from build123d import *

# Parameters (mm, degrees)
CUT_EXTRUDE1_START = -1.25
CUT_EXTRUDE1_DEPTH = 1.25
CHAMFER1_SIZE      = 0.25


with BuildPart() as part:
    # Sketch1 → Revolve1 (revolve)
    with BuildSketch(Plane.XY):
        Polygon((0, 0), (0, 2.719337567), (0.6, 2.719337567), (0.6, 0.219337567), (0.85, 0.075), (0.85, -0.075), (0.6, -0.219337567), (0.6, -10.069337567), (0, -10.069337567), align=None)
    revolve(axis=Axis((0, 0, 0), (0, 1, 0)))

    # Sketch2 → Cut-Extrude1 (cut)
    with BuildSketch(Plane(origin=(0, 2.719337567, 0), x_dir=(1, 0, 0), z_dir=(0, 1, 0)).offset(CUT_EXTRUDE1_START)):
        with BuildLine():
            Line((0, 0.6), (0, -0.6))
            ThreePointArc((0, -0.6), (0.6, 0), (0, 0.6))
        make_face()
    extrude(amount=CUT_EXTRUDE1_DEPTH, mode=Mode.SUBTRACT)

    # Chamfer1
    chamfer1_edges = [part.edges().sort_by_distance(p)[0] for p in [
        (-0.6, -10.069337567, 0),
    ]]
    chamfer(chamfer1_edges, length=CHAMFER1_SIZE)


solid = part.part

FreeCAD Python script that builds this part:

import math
import FreeCAD as App
import Part
import Sketcher
Q = App.Units.Quantity


def edges_at(feature, points):
    """Names of the edges that pass closest to the given points."""
    edges = feature.Shape.Edges
    near = lambda p: min(range(len(edges)), key=lambda i: edges[i].distToShape(Part.Vertex(*p))[0])
    return sorted({f"Edge{near(p) + 1}" for p in points})


def add_polygon(sketch, points):
    """Adds a closed chain of lines whose ends are joined by coincident constraints."""
    first, n = sketch.GeometryCount, len(points)
    for a, b in zip(points, points[1:] + points[:1]):
        sketch.addGeometry(Part.LineSegment(App.Vector(*a, 0), App.Vector(*b, 0)), False)
    for i in range(n):
        sketch.addConstraint(Sketcher.Constraint("Coincident", first + i, 2, first + (i + 1) % n, 1))

doc = App.newDocument("Part")
body = doc.addObject("PartDesign::Body", "Body")

sketch1 = body.newObject("Sketcher::SketchObject", "Sketch")
sketch1.AttachmentSupport = (doc.getObject("XY_Plane"), [""])
sketch1.MapMode = "FlatFace"
add_polygon(sketch1, [(0, 2.719338), (0, -10.069338), (0.6, -10.069338), (0.6, -0.219338), (0.85, -0.075), (0.85, 0.075), (0.6, 0.219338), (0.6, 2.719338)])
sketch1.addConstraint([
    Sketcher.Constraint("Vertical", 0),
    Sketcher.Constraint("Horizontal", 1),
    Sketcher.Constraint("Vertical", 2),
    Sketcher.Constraint("Vertical", 4),
    Sketcher.Constraint("Vertical", 6),
    Sketcher.Constraint("Horizontal", 7),
    Sketcher.Constraint("Symmetric", 2, 2, 5, 2, -1),
    Sketcher.Constraint("PointOnObject", 0, 2, -2),
    Sketcher.Constraint("Equal", 3, 5),
    Sketcher.Constraint("Angle", 3, Q("30 deg")),
    Sketcher.Constraint("DistanceX", 1, 1, 1, 2, 0.6),
    Sketcher.Constraint("DistanceY", 6, 1, 6, 2, 2.5),
    Sketcher.Constraint("DistanceY", 2, 1, 2, 2, 9.85),
    Sketcher.Constraint("DistanceY", 4, 1, 4, 2, 0.15),
    Sketcher.Constraint("DistanceX", -1, 1, 3, 2, 0.85),
])
revolution = body.newObject("PartDesign::Revolution", "Revolution")
revolution.Profile = sketch1
revolution.ReferenceAxis = (sketch1, ["V_Axis"])
revolution.Angle = 360

sketch2 = body.newObject("Sketcher::SketchObject", "Sketch001")
sketch2.AttachmentSupport = (doc.getObject("XZ_Plane"), [""])
sketch2.MapMode = "FlatFace"
sketch2.AttachmentOffset = App.Placement(App.Vector(0, 0, -1.469338), App.Rotation())
sketch2.addGeometry([
    Part.LineSegment(App.Vector(0, -0.6, 0), App.Vector(0, 0.6, 0)),
    Part.ArcOfCircle(Part.Circle(App.Vector(0, 0, 0), App.Vector(0, 0, 1), 0.6), math.radians(-90), math.radians(90)),
], False)
sketch2.addConstraint([
    Sketcher.Constraint("Coincident", 0, 1, 1, 1),
    Sketcher.Constraint("Coincident", 1, 2, 0, 2),
    Sketcher.Constraint("Vertical", 0),
    Sketcher.Constraint("Coincident", 1, 3, -1, 1),
    Sketcher.Constraint("PointOnObject", 0, 1, -2),
    Sketcher.Constraint("Radius", 1, 0.6),
])
pocket1 = body.newObject("PartDesign::Pocket", "Pocket")
pocket1.Profile = sketch2
pocket1.Length = 1.25
doc.recompute()

chamfer = body.newObject("PartDesign::Chamfer", "Chamfer")
chamfer.Base = (pocket1, edges_at(pocket1, [(-0.6, -10.069, 0)]))
chamfer.Size = 0.25

doc.recompute()
